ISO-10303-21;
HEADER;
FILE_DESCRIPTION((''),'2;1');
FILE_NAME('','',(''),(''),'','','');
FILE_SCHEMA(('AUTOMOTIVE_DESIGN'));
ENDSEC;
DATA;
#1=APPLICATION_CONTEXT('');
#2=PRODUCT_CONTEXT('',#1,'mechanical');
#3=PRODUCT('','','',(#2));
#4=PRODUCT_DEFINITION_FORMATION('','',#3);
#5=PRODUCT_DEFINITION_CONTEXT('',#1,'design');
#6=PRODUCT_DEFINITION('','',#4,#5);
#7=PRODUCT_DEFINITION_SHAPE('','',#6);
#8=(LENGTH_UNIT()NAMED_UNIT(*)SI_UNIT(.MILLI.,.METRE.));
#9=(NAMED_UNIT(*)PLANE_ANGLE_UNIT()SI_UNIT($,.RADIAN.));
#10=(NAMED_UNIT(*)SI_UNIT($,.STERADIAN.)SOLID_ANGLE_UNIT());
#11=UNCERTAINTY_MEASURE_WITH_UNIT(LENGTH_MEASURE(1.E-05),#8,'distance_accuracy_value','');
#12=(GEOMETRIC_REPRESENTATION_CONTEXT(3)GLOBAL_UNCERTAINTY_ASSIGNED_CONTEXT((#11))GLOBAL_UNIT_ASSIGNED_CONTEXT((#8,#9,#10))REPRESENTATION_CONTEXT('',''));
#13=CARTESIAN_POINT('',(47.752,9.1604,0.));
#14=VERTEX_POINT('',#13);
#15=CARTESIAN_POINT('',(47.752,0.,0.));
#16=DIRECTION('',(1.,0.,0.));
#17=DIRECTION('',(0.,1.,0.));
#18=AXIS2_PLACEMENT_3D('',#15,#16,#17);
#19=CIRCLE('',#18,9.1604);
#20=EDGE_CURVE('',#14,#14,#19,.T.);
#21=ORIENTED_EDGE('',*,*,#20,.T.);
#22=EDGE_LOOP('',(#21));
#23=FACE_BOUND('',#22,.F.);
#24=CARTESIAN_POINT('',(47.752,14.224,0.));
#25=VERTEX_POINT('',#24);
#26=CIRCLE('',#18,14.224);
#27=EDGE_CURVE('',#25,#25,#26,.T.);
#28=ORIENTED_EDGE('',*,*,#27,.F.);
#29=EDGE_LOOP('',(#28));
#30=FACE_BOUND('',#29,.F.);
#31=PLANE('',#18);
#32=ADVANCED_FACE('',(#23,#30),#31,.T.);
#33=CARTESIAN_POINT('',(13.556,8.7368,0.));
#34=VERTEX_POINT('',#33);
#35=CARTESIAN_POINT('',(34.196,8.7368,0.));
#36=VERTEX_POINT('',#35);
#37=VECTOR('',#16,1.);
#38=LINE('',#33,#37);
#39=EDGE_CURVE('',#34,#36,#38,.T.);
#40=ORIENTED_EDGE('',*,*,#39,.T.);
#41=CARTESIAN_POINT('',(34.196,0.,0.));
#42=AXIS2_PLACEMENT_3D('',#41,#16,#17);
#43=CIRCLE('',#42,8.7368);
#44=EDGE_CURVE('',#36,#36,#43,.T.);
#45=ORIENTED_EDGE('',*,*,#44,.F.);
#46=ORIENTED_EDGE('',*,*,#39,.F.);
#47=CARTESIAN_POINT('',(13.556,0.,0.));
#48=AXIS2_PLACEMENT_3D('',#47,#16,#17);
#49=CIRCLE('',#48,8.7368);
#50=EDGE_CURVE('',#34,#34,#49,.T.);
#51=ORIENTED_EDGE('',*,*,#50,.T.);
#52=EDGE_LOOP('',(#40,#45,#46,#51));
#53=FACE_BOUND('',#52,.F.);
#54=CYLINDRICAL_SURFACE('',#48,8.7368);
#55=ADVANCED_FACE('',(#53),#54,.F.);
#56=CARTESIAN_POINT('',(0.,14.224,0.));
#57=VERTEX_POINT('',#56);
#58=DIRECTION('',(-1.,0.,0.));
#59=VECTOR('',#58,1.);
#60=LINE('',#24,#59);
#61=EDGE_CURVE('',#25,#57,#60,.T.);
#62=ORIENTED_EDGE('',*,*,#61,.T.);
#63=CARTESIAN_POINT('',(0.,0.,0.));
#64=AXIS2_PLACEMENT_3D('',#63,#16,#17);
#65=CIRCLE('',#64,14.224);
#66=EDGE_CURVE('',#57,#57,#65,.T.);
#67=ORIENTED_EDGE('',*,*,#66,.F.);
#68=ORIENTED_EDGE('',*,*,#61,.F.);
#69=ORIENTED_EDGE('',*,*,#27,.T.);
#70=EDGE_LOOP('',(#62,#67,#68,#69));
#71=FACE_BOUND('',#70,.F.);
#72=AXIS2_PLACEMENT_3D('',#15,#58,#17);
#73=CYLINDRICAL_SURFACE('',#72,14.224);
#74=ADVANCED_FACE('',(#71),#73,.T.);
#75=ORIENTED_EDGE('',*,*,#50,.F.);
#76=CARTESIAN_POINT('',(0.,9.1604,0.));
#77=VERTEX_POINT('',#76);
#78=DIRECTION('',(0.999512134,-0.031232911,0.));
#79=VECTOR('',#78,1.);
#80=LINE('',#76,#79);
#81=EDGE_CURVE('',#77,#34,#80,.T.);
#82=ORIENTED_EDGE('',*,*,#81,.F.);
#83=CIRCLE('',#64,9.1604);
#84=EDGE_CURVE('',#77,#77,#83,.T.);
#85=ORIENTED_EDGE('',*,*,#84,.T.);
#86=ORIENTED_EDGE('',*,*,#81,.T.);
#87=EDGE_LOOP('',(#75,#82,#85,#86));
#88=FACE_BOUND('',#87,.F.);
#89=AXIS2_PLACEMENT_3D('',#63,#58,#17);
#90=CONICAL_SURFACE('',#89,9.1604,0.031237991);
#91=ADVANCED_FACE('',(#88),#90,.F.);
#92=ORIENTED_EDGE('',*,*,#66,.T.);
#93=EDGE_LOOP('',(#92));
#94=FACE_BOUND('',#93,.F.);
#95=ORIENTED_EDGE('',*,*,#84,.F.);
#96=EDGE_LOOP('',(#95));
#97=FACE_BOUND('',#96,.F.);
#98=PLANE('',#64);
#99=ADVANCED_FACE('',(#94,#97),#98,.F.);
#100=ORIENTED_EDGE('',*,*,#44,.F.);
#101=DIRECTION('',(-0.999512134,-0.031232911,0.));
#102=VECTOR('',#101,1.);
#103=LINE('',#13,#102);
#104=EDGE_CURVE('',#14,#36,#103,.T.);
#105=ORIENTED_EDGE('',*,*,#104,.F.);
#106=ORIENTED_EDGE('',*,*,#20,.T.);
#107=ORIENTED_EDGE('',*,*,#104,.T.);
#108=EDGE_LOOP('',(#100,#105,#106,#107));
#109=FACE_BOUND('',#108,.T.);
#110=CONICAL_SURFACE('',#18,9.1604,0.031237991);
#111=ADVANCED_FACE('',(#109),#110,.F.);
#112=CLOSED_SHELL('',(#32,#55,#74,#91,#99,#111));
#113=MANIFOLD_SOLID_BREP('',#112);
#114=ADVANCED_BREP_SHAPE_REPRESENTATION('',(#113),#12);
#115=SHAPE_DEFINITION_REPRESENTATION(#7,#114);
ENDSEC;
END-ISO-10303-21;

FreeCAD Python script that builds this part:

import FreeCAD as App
import Part
import Sketcher
Q = App.Units.Quantity


def add_polygon(sketch, points):
    """Adds a closed chain of lines whose ends are joined by coincident constraints."""
    first, n = sketch.GeometryCount, len(points)
    for a, b in zip(points, points[1:] + points[:1]):
        sketch.addGeometry(Part.LineSegment(App.Vector(*a, 0), App.Vector(*b, 0)), False)
    for i in range(n):
        sketch.addConstraint(Sketcher.Constraint("Coincident", first + i, 2, first + (i + 1) % n, 1))

doc = App.newDocument("Part")
params = doc.addObject("Spreadsheet::Sheet", "Params")
for row, (alias, value) in enumerate([
    ("sketch1_width", "1.88 in"),
    ("revolution_angle", "360 deg"),
], start=1):
    params.set(f"A{row}", alias)
    params.set(f"B{row}", "=" + value)
    params.setAlias(f"B{row}", alias)

body = doc.addObject("PartDesign::Body", "Body")

sketch1 = doc.addObject("Sketcher::SketchObject", "Sketch")
body.addObject(sketch1)
sketch1.AttachmentSupport = (doc.XY_Plane, [""])
sketch1.MapMode = "FlatFace"
add_polygon(sketch1, [(34, 9), (48, 9), (48, 14), (0, 14), (0, 9), (14, 9)])
sketch1.addConstraint([
    Sketcher.Constraint("Vertical", 1),
    Sketcher.Constraint("Horizontal", 2),
    Sketcher.Constraint("Vertical", 3),
    Sketcher.Constraint("Horizontal", 5),
    Sketcher.Constraint("PointOnObject", 2, 2, -2),
    Sketcher.Constraint("Horizontal", 0, 2, 3, 2),
    Sketcher.Constraint("Equal", 0, 4),
    Sketcher.Constraint("DistanceX", 2, 2, 2, 1, Q("1.88 in")),
    Sketcher.Constraint("Angle", 0, Q("1.7898 deg")),
    Sketcher.Constraint("DistanceX", -1, 1, 4, 2, Q("0.5337 in")),
    Sketcher.Constraint("DistanceY", -1, 1, 1, 2, Q("0.56 in")),
    Sketcher.Constraint("DistanceY", 1, 1, 1, 2, 5.0636),
])
sketch1.setExpression("Constraints[13]", "Params.sketch1_width")
revolution = doc.addObject("PartDesign::Revolution", "Revolution")
body.addObject(revolution)
revolution.Profile = sketch1
revolution.ReferenceAxis = (sketch1, ["H_Axis"])
revolution.setExpression("Angle", "Params.revolution_angle")

doc.recompute()
